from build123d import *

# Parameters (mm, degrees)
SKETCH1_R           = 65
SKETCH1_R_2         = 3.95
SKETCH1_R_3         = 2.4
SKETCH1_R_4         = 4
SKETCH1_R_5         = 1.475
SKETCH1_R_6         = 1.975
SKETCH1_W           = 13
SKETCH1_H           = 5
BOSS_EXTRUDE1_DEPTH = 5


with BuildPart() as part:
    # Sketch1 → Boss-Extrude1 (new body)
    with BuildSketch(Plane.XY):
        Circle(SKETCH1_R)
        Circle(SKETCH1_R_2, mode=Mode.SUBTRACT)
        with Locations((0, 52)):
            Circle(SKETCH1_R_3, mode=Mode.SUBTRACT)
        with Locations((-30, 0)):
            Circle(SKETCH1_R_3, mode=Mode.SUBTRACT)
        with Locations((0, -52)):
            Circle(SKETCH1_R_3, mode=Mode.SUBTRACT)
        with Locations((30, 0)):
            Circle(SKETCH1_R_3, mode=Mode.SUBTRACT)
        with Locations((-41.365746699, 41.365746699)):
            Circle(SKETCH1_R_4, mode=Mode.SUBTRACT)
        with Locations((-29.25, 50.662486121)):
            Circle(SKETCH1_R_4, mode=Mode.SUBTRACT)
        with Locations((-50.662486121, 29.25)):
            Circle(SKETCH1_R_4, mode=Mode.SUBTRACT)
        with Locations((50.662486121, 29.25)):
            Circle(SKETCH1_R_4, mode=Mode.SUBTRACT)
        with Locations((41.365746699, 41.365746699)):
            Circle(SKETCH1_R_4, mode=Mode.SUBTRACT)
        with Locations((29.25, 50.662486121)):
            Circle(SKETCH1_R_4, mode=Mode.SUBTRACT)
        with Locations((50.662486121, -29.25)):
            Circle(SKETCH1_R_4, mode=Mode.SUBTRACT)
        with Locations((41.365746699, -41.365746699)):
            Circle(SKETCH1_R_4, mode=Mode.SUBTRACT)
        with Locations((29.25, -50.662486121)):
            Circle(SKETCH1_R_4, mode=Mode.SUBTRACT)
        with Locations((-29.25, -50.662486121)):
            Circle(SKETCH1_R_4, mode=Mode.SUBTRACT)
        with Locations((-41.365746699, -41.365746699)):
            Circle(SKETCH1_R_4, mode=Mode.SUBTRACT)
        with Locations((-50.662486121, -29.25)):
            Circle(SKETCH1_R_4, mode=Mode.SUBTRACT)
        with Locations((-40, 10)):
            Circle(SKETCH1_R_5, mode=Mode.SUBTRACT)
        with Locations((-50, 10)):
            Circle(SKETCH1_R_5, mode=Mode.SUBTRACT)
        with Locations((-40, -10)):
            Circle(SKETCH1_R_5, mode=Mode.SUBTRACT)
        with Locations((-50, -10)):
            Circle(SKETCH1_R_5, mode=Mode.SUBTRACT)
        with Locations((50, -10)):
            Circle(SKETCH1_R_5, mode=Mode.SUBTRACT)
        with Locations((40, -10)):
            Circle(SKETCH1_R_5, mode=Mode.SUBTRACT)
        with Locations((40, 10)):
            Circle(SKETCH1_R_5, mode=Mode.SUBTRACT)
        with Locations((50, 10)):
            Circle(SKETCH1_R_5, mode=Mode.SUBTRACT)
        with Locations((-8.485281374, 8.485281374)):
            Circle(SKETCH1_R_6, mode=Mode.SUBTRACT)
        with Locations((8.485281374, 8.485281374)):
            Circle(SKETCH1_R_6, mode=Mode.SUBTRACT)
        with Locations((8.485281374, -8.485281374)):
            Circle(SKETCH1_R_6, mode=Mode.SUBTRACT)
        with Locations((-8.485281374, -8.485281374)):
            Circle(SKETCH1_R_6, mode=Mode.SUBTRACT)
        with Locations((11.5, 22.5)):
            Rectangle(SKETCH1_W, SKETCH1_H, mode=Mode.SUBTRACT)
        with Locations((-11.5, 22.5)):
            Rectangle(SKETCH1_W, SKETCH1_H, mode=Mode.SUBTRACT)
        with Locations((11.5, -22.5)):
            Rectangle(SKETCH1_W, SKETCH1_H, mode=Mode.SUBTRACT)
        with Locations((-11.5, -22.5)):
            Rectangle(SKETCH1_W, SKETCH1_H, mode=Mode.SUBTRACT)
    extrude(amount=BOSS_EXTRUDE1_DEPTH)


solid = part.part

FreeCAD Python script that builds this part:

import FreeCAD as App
import Part
import Sketcher

V = App.Vector


def add_polygon(sketch, points):
    """Adds a closed chain of lines whose ends are joined by coincident constraints."""
    first, n = sketch.GeometryCount, len(points)
    for a, b in zip(points, points[1:] + points[:1]):
        sketch.addGeometry(Part.LineSegment(App.Vector(*a, 0), App.Vector(*b, 0)), False)
    for i in range(n):
        sketch.addConstraint(Sketcher.Constraint("Coincident", first + i, 2, first + (i + 1) % n, 1))

doc = App.newDocument("Part")
body = doc.addObject("PartDesign::Body", "Body")

# Sketch on XY plane
sketch1 = doc.addObject("Sketcher::SketchObject", "Sketch")
body.addObject(sketch1)
sketch1.AttachmentSupport = (doc.XY_Plane, [""])
sketch1.MapMode = "FlatFace"
sketch1.addGeometry(Part.Circle(V(0, 0, 0), V(0, 0, 1), 65), False)  # 0
sketch1.addGeometry(Part.Circle(V(-41.4, -41.4, 0), V(0, 0, 1), 4), False)  # 1
sketch1.addGeometry(Part.Circle(V(-29.2, -50.7, 0), V(0, 0, 1), 4), False)  # 2
sketch1.addGeometry(Part.Circle(V(-50.7, -29.2, 0), V(0, 0, 1), 4), False)  # 3
sketch1.addGeometry(Part.Circle(V(-50, -10, 0), V(0, 0, 1), 1.5), False)  # 4
sketch1.addGeometry(Part.Circle(V(-40, -10, 0), V(0, 0, 1), 1.5), False)  # 5
add_polygon(sketch1, [(-5, -25), (-18, -25), (-18, -20), (-5, -20)])  # lines 6-9
sketch1.addGeometry(Part.Circle(V(-8.5, -8.5, 0), V(0, 0, 1), 2), False)  # 10
sketch1.addGeometry(Part.Circle(V(0, -52, 0), V(0, 0, 1), 2.4), False)  # 11
sketch1.addGeometry(Part.Circle(V(29.2, -50.7, 0), V(0, 0, 1), 4), False)  # 12
sketch1.addGeometry(Part.Circle(V(41.4, -41.4, 0), V(0, 0, 1), 4), False)  # 13
sketch1.addGeometry(Part.Circle(V(50.7, -29.2, 0), V(0, 0, 1), 4), False)  # 14
add_polygon(sketch1, [(18, -25), (5, -25), (5, -20), (18, -20)])  # lines 15-18
sketch1.addGeometry(Part.Circle(V(8.5, -8.5, 0), V(0, 0, 1), 2), False)  # 19
sketch1.addGeometry(Part.Circle(V(40, -10, 0), V(0, 0, 1), 1.5), False)  # 20
sketch1.addGeometry(Part.Circle(V(50, -10, 0), V(0, 0, 1), 1.5), False)  # 21
sketch1.addGeometry(Part.Circle(V(-50, 10, 0), V(0, 0, 1), 1.5), False)  # 22
sketch1.addGeometry(Part.Circle(V(-30, 0, 0), V(0, 0, 1), 2.4), False)  # 23
sketch1.addGeometry(Part.Circle(V(-40, 10, 0), V(0, 0, 1), 1.5), False)  # 24
sketch1.addGeometry(Part.Circle(V(-8.5, 8.5, 0), V(0, 0, 1), 2), False)  # 25
add_polygon(sketch1, [(-5, 20), (-18, 20), (-18, 25), (-5, 25)])  # lines 26-29
sketch1.addGeometry(Part.Circle(V(-50.7, 29.2, 0), V(0, 0, 1), 4), False)  # 30
sketch1.addGeometry(Part.Circle(V(-41.4, 41.4, 0), V(0, 0, 1), 4), False)  # 31
sketch1.addGeometry(Part.Circle(V(-29.2, 50.7, 0), V(0, 0, 1), 4), False)  # 32
sketch1.addGeometry(Part.Circle(V(0, 0, 0), V(0, 0, 1), 4), False)  # 33
sketch1.addGeometry(Part.Circle(V(8.5, 8.5, 0), V(0, 0, 1), 2), False)  # 34
add_polygon(sketch1, [(18, 20), (5, 20), (5, 25), (18, 25)])  # lines 35-38
sketch1.addGeometry(Part.Circle(V(30, 0, 0), V(0, 0, 1), 2.4), False)  # 39
sketch1.addGeometry(Part.Circle(V(40, 10, 0), V(0, 0, 1), 1.5), False)  # 40
sketch1.addGeometry(Part.Circle(V(50, 10, 0), V(0, 0, 1), 1.5), False)  # 41
sketch1.addGeometry(Part.Circle(V(0, 52, 0), V(0, 0, 1), 2.4), False)  # 42
sketch1.addGeometry(Part.Circle(V(50.7, 29.2, 0), V(0, 0, 1), 4), False)  # 43
sketch1.addGeometry(Part.Circle(V(29.2, 50.7, 0), V(0, 0, 1), 4), False)  # 44
sketch1.addGeometry(Part.Circle(V(41.4, 41.4, 0), V(0, 0, 1), 4), False)  # 45
sketch1.addConstraint(Sketcher.Constraint("Horizontal", 6))
sketch1.addConstraint(Sketcher.Constraint("Vertical", 7))
sketch1.addConstraint(Sketcher.Constraint("Horizontal", 8))
sketch1.addConstraint(Sketcher.Constraint("Vertical", 9))
sketch1.addConstraint(Sketcher.Constraint("Horizontal", 15))
sketch1.addConstraint(Sketcher.Constraint("Vertical", 16))
sketch1.addConstraint(Sketcher.Constraint("Horizontal", 17))
sketch1.addConstraint(Sketcher.Constraint("Vertical", 18))
sketch1.addConstraint(Sketcher.Constraint("Horizontal", 26))
sketch1.addConstraint(Sketcher.Constraint("Vertical", 27))
sketch1.addConstraint(Sketcher.Constraint("Horizontal", 28))
sketch1.addConstraint(Sketcher.Constraint("Vertical", 29))
sketch1.addConstraint(Sketcher.Constraint("Horizontal", 35))
sketch1.addConstraint(Sketcher.Constraint("Vertical", 36))
sketch1.addConstraint(Sketcher.Constraint("Horizontal", 37))
sketch1.addConstraint(Sketcher.Constraint("Vertical", 38))
sketch1.addConstraint(Sketcher.Constraint("Coincident", 0, 3, -1, 1))
sketch1.addConstraint(Sketcher.Constraint("Coincident", 33, 3, -1, 1))
sketch1.addConstraint(Sketcher.Constraint("Equal", 1, 2))
sketch1.addConstraint(Sketcher.Constraint("Equal", 2, 3))
sketch1.addConstraint(Sketcher.Constraint("Equal", 4, 5))
sketch1.addConstraint(Sketcher.Constraint("Equal", 3, 12))
sketch1.addConstraint(Sketcher.Constraint("Equal", 12, 13))
sketch1.addConstraint(Sketcher.Constraint("Equal", 13, 14))
sketch1.addConstraint(Sketcher.Constraint("Equal", 10, 19))
sketch1.addConstraint(Sketcher.Constraint("Equal", 5, 20))
sketch1.addConstraint(Sketcher.Constraint("Equal", 20, 21))
sketch1.addConstraint(Sketcher.Constraint("Equal", 21, 22))
sketch1.addConstraint(Sketcher.Constraint("Equal", 11, 23))
sketch1.addConstraint(Sketcher.Constraint("Equal", 22, 24))
sketch1.addConstraint(Sketcher.Constraint("Equal", 19, 25))
sketch1.addConstraint(Sketcher.Constraint("Equal", 14, 30))
sketch1.addConstraint(Sketcher.Constraint("Equal", 30, 31))
sketch1.addConstraint(Sketcher.Constraint("Equal", 31, 32))
sketch1.addConstraint(Sketcher.Constraint("Equal", 25, 34))
sketch1.addConstraint(Sketcher.Constraint("Equal", 23, 39))
sketch1.addConstraint(Sketcher.Constraint("Equal", 24, 40))
sketch1.addConstraint(Sketcher.Constraint("Equal", 40, 41))
sketch1.addConstraint(Sketcher.Constraint("Equal", 39, 42))
sketch1.addConstraint(Sketcher.Constraint("Equal", 32, 43))
sketch1.addConstraint(Sketcher.Constraint("Equal", 43, 44))
sketch1.addConstraint(Sketcher.Constraint("Equal", 44, 45))
sketch1.addConstraint(Sketcher.Constraint("Symmetric", 21, 3, 22, 3, -1, 1))
sketch1.addConstraint(Sketcher.Constraint("Symmetric", 20, 3, 24, 3, -1, 1))
sketch1.addConstraint(Sketcher.Constraint("Symmetric", 19, 3, 25, 3, -1, 1))
sketch1.addConstraint(Sketcher.Constraint("Symmetric", 14, 3, 30, 3, -1, 1))
sketch1.addConstraint(Sketcher.Constraint("Symmetric", 13, 3, 31, 3, -1, 1))
sketch1.addConstraint(Sketcher.Constraint("Symmetric", 12, 3, 32, 3, -1, 1))
sketch1.addConstraint(Sketcher.Constraint("Symmetric", 10, 3, 34, 3, -1, 1))
sketch1.addConstraint(Sketcher.Constraint("Symmetric", 23, 3, 39, 3, -1, 1))
sketch1.addConstraint(Sketcher.Constraint("Symmetric", 5, 3, 40, 3, -1, 1))
sketch1.addConstraint(Sketcher.Constraint("Symmetric", 4, 3, 41, 3, -1, 1))
sketch1.addConstraint(Sketcher.Constraint("Symmetric", 11, 3, 42, 3, -1, 1))
sketch1.addConstraint(Sketcher.Constraint("Symmetric", 3, 3, 43, 3, -1, 1))
sketch1.addConstraint(Sketcher.Constraint("Symmetric", 2, 3, 44, 3, -1, 1))
sketch1.addConstraint(Sketcher.Constraint("Symmetric", 1, 3, 45, 3, -1, 1))
sketch1.addConstraint(Sketcher.Constraint("Symmetric", 17, 2, 26, 2, -1, 1))
sketch1.addConstraint(Sketcher.Constraint("Symmetric", 15, 2, 28, 2, -1, 1))
sketch1.addConstraint(Sketcher.Constraint("Symmetric", 8, 2, 35, 2, -1, 1))
sketch1.addConstraint(Sketcher.Constraint("Symmetric", 6, 2, 37, 2, -1, 1))
sketch1.addConstraint(Sketcher.Constraint("Symmetric", 2, 3, 12, 3, -2))
sketch1.addConstraint(Sketcher.Constraint("Symmetric", 1, 3, 13, 3, -2))
sketch1.addConstraint(Sketcher.Constraint("Symmetric", 3, 3, 14, 3, -2))
sketch1.addConstraint(Sketcher.Constraint("Symmetric", 10, 3, 19, 3, -2))
sketch1.addConstraint(Sketcher.Constraint("Symmetric", 5, 3, 20, 3, -2))
sketch1.addConstraint(Sketcher.Constraint("Symmetric", 4, 3, 21, 3, -2))
sketch1.addConstraint(Sketcher.Constraint("Symmetric", 9, 2, 15, 2, -2))
sketch1.addConstraint(Sketcher.Constraint("Symmetric", 7, 2, 17, 2, -2))
sketch1.addConstraint(Sketcher.Constraint("PointOnObject", 11, 3, -2))
sketch1.addConstraint(Sketcher.Constraint("PointOnObject", 23, 3, -1))
sketch1.addConstraint(Sketcher.Constraint("Horizontal", 4, 3, 5, 3))
sketch1.addConstraint(Sketcher.Constraint("Diameter", 0, 130.0))
sketch1.addConstraint(Sketcher.Constraint("Diameter", 1, 8.0))
sketch1.addConstraint(Sketcher.Constraint("Diameter", 11, 4.8))
sketch1.addConstraint(Sketcher.Constraint("Diameter", 33, 7.9))
sketch1.addConstraint(Sketcher.Constraint("Diameter", 4, 2.95))
sketch1.addConstraint(Sketcher.Constraint("Diameter", 10, 3.95))
sketch1.addConstraint(Sketcher.Constraint("DistanceX", 6, 2, 6, 1, 13.0))
sketch1.addConstraint(Sketcher.Constraint("DistanceY", 7, 1, 7, 2, 5.0))
sketch1.addConstraint(Sketcher.Constraint("DistanceX", 4, 3, -1, 1, 50.0))
sketch1.addConstraint(Sketcher.Constraint("DistanceY", 4, 3, -1, 1, 10.0))
sketch1.addConstraint(Sketcher.Constraint("DistanceX", 5, 3, -1, 1, 40.0))
sketch1.addConstraint(Sketcher.Constraint("DistanceY", 11, 3, -1, 1, 52.0))
sketch1.addConstraint(Sketcher.Constraint("DistanceX", 23, 3, -1, 1, 30.0))
sketch1.addConstraint(Sketcher.Constraint("DistanceX", 6, 2, -1, 1, 18.0))
sketch1.addConstraint(Sketcher.Constraint("DistanceY", 6, 2, -1, 1, 25.0))
sketch1.addConstraint(Sketcher.Constraint("DistanceX", 2, 3, 12, 3, 58.5))
sketch1.addConstraint(Sketcher.Constraint("DistanceY", 3, 3, -1, 1, 29.25))
sketch1.addConstraint(Sketcher.Constraint("DistanceX", 10, 3, -1, 1, 8.485281))
sketch1.addConstraint(Sketcher.Constraint("DistanceY", 10, 3, -1, 1, 8.485281))
sketch1.addConstraint(Sketcher.Constraint("DistanceY", 2, 3, 1, 3, 9.296739))
sketch1.addConstraint(Sketcher.Constraint("DistanceX", 3, 3, 1, 3, 9.296739))
sketch1.addConstraint(Sketcher.Constraint("DistanceX", 10, 3, 13, 3, 49.851028))
sketch1.addConstraint(Sketcher.Constraint("DistanceY", 1, 3, -1, 1, 41.365747))
pad1 = doc.addObject("PartDesign::Pad", "Pad")
body.addObject(pad1)
pad1.Profile = sketch1
pad1.Length = 5

doc.recompute()
